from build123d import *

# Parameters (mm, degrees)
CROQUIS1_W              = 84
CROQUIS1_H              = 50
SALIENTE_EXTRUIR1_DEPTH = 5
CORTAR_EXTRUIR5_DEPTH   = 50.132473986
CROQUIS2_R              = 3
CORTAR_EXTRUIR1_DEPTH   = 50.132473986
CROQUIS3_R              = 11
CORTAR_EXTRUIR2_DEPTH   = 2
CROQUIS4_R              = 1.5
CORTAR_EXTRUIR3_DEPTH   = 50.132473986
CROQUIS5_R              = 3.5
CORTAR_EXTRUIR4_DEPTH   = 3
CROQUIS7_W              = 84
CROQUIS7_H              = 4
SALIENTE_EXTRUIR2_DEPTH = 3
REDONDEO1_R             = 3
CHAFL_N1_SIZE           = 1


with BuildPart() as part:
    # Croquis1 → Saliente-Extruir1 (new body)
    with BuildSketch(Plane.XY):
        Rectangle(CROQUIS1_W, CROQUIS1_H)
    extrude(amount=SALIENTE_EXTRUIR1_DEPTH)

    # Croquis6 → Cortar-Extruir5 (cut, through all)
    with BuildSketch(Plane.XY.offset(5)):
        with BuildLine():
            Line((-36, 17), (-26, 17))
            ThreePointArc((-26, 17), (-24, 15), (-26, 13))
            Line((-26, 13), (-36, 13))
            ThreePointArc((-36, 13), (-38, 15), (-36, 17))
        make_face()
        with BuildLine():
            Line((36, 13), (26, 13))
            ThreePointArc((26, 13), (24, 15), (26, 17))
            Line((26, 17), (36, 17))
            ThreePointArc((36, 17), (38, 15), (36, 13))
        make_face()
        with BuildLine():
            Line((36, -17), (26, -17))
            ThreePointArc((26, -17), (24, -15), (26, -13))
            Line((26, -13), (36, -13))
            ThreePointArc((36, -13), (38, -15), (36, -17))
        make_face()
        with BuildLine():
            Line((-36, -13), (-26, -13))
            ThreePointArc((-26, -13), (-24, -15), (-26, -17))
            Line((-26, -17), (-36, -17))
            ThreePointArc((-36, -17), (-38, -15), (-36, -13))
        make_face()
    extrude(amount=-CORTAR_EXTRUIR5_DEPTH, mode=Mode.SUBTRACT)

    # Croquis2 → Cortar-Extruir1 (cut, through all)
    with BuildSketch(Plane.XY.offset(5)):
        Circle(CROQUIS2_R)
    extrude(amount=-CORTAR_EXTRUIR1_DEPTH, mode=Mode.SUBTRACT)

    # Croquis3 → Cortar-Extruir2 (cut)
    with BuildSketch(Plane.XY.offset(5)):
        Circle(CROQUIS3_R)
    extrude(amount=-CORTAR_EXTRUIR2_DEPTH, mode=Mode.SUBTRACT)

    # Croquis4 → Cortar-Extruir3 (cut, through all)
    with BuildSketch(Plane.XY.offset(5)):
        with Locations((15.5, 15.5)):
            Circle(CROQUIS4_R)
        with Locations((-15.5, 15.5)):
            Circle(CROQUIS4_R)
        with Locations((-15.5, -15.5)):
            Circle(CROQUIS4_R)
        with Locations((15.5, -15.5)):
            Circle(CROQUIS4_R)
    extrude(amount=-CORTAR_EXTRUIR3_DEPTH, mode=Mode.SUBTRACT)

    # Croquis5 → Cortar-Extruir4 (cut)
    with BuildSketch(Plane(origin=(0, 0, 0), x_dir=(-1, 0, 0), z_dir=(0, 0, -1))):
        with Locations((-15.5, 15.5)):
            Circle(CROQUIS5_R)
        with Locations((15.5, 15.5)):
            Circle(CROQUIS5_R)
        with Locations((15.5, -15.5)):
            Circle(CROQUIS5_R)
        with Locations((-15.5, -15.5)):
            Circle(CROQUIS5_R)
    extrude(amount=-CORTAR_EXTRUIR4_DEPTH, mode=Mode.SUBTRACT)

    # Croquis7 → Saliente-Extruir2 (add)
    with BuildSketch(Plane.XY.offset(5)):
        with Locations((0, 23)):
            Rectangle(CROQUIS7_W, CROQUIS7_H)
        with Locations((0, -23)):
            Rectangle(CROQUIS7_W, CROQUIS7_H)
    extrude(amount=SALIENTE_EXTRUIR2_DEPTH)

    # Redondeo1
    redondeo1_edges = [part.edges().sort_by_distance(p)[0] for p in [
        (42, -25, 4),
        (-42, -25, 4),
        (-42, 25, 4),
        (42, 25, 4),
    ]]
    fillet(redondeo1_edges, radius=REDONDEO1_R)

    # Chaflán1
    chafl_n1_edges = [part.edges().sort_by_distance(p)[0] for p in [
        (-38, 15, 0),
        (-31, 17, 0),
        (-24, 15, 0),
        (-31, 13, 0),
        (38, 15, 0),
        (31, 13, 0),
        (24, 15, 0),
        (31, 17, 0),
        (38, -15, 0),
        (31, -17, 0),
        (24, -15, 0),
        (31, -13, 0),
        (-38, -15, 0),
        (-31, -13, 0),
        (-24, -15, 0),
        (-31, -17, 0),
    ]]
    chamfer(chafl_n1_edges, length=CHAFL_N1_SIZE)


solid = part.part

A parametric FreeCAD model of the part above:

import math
import FreeCAD as App
import Part
import Sketcher
from FreeCAD import Vector
Q = App.Units.Quantity


def edges_at(feature, points):
    """Names of the edges that pass closest to the given points."""
    edges = feature.Shape.Edges
    near = lambda p: min(range(len(edges)), key=lambda i: edges[i].distToShape(Part.Vertex(*p))[0])
    return sorted({f"Edge{near(p) + 1}" for p in points})


def add_polygon(sketch, points):
    """Adds a closed chain of lines whose ends are joined by coincident constraints."""
    first, n = sketch.GeometryCount, len(points)
    for a, b in zip(points, points[1:] + points[:1]):
        sketch.addGeometry(Part.LineSegment(App.Vector(*a, 0), App.Vector(*b, 0)), False)
    for i in range(n):
        sketch.addConstraint(Sketcher.Constraint("Coincident", first + i, 2, first + (i + 1) % n, 1))

doc = App.newDocument("Part")
params = doc.addObject("Spreadsheet::Sheet", "Params")
for row, (alias, value) in enumerate([
    ("sketch1_width", "84 mm"),
    ("sketch1_height", "50 mm"),
    ("pad1_length", "5 mm"),
    ("sketch2_radius", "2 mm"),
    ("sketch2_width", "10 mm"),
    ("sketch3_diameter", "6 mm"),
    ("sketch4_diameter", "22 mm"),
    ("pocket3_length", "2 mm"),
    ("sketch5_diameter", "3 mm"),
    ("sketch6_diameter", "7 mm"),
    ("pocket5_length", "3 mm"),
    ("sketch7_width", "84 mm"),
    ("sketch7_height", "4 mm"),
    ("pad2_length", "3 mm"),
    ("fillet_radius", "3 mm"),
    ("chamfer_size", "1 mm"),
], start=1):
    params.set(f"A{row}", alias)
    params.set(f"B{row}", "=" + value)
    params.setAlias(f"B{row}", alias)

body = doc.addObject("PartDesign::Body", "Body")

# Sketch on XY plane
sketch1 = body.newObject("Sketcher::SketchObject", "Sketch")
sketch1.AttachmentSupport = (doc.getObject("XY_Plane"), [""])
sketch1.MapMode = "FlatFace"
add_polygon(sketch1, [(-42, 25), (-42, -25), (42, -25), (42, 25)])  # lines 0-3
sketch1.addConstraint([
    Sketcher.Constraint("Vertical", 0),
    Sketcher.Constraint("Horizontal", 1),
    Sketcher.Constraint("Vertical", 2),
    Sketcher.Constraint("Horizontal", 3),
    Sketcher.Constraint("Symmetric", 0, 2, 2, 2, -1, 1),
    Sketcher.Constraint("DistanceX", 1, 1, 1, 2, Q("84 mm")),
    Sketcher.Constraint("DistanceY", 0, 2, 0, 1, Q("50 mm")),
])
sketch1.setExpression("Constraints[9]", "Params.sketch1_width")
sketch1.setExpression("Constraints[10]", "Params.sketch1_height")
pad1 = body.newObject("PartDesign::Pad", "Pad")
pad1.Profile = sketch1
pad1.setExpression("Length", "Params.pad1_length")

# Sketch on XY plane
sketch2 = body.newObject("Sketcher::SketchObject", "Sketch001")
sketch2.AttachmentSupport = (doc.getObject("XY_Plane"), [""])
sketch2.MapMode = "FlatFace"
sketch2.AttachmentOffset = App.Placement(Vector(0, 0, 5), App.Rotation())
sketch2.addGeometry([
    Part.LineSegment(Vector(-26, 17, 0), Vector(-36, 17, 0)),  # 0
    Part.ArcOfCircle(Part.Circle(Vector(-36, 15, 0), Vector(0, 0, 1), 2), math.radians(90), math.radians(270)),  # 1
    Part.LineSegment(Vector(-36, 13, 0), Vector(-26, 13, 0)),  # 2
    Part.ArcOfCircle(Part.Circle(Vector(-26, 15, 0), Vector(0, 0, 1), 2), math.radians(-90), math.radians(90)),  # 3
    Part.LineSegment(Vector(26, 13, 0), Vector(36, 13, 0)),  # 4
    Part.ArcOfCircle(Part.Circle(Vector(36, 15, 0), Vector(0, 0, 1), 2), math.radians(-90), math.radians(90)),  # 5
    Part.LineSegment(Vector(36, 17, 0), Vector(26, 17, 0)),  # 6
    Part.ArcOfCircle(Part.Circle(Vector(26, 15, 0), Vector(0, 0, 1), 2), math.radians(90), math.radians(270)),  # 7
    Part.LineSegment(Vector(26, -17, 0), Vector(36, -17, 0)),  # 8
    Part.ArcOfCircle(Part.Circle(Vector(36, -15, 0), Vector(0, 0, 1), 2), math.radians(-90), math.radians(90)),  # 9
    Part.LineSegment(Vector(36, -13, 0), Vector(26, -13, 0)),  # 10
    Part.ArcOfCircle(Part.Circle(Vector(26, -15, 0), Vector(0, 0, 1), 2), math.radians(90), math.radians(270)),  # 11
    Part.LineSegment(Vector(-26, -13, 0), Vector(-36, -13, 0)),  # 12
    Part.ArcOfCircle(Part.Circle(Vector(-36, -15, 0), Vector(0, 0, 1), 2), math.radians(90), math.radians(270)),  # 13
    Part.LineSegment(Vector(-36, -17, 0), Vector(-26, -17, 0)),  # 14
    Part.ArcOfCircle(Part.Circle(Vector(-26, -15, 0), Vector(0, 0, 1), 2), math.radians(-90), math.radians(90)),  # 15
], False)
sketch2.addConstraint([
    Sketcher.Constraint("Tangent", 0, 2, 1, 1),
    Sketcher.Constraint("Tangent", 1, 2, 2, 1),
    Sketcher.Constraint("Tangent", 2, 2, 3, 1),
    Sketcher.Constraint("Tangent", 3, 2, 0, 1),
    Sketcher.Constraint("Tangent", 4, 2, 5, 1),
    Sketcher.Constraint("Tangent", 5, 2, 6, 1),
    Sketcher.Constraint("Tangent", 6, 2, 7, 1),
    Sketcher.Constraint("Tangent", 7, 2, 4, 1),
    Sketcher.Constraint("Tangent", 8, 2, 9, 1),
    Sketcher.Constraint("Tangent", 9, 2, 10, 1),
    Sketcher.Constraint("Tangent", 10, 2, 11, 1),
    Sketcher.Constraint("Tangent", 11, 2, 8, 1),
    Sketcher.Constraint("Tangent", 12, 2, 13, 1),
    Sketcher.Constraint("Tangent", 13, 2, 14, 1),
    Sketcher.Constraint("Tangent", 14, 2, 15, 1),
    Sketcher.Constraint("Tangent", 15, 2, 12, 1),
    Sketcher.Constraint("Horizontal", 0),
    Sketcher.Constraint("Horizontal", 2),
    Sketcher.Constraint("Horizontal", 4),
    Sketcher.Constraint("Horizontal", 6),
    Sketcher.Constraint("Horizontal", 8),
    Sketcher.Constraint("Horizontal", 10),
    Sketcher.Constraint("Horizontal", 12),
    Sketcher.Constraint("Horizontal", 14),
    Sketcher.Constraint("Equal", 3, 5),
    Sketcher.Constraint("Equal", 7, 9),
    Sketcher.Constraint("Equal", 11, 13),
    Sketcher.Constraint("Symmetric", 1, 3, 9, 3, -1, 1),
    Sketcher.Constraint("Symmetric", 5, 3, 13, 3, -1, 1),
    Sketcher.Constraint("Symmetric", 1, 3, 5, 3, -2),
    Sketcher.Constraint("Vertical", 7, 3, 11, 3),
    Sketcher.Constraint("Vertical", 3, 3, 15, 3),
    Sketcher.Constraint("Equal", 2, 4),
    Sketcher.Constraint("Radius", 1, Q("2 mm")),
    Sketcher.Constraint("DistanceX", 0, 2, 0, 1, Q("10 mm")),
    Sketcher.Constraint("DistanceX", 1, 3, -1, 1, Q("36 mm")),
    Sketcher.Constraint("DistanceY", -1, 1, 1, 3, Q("15 mm")),
])
sketch2.setExpression("Constraints[33]", "Params.sketch2_radius")
sketch2.setExpression("Constraints[34]", "Params.sketch2_width")
pocket1 = body.newObject("PartDesign::Pocket", "Pocket")
pocket1.Profile = sketch2
pocket1.Type = "ThroughAll"

# Sketch on XY plane
sketch3 = body.newObject("Sketcher::SketchObject", "Sketch002")
sketch3.AttachmentSupport = (doc.getObject("XY_Plane"), [""])
sketch3.MapMode = "FlatFace"
sketch3.AttachmentOffset = App.Placement(Vector(0, 0, 5), App.Rotation())
sketch3.addGeometry(Part.Circle(Vector(0, 0, 0), Vector(0, 0, 1), 3), False)
sketch3.addConstraint([
    Sketcher.Constraint("Coincident", 0, 3, -1, 1),
    Sketcher.Constraint("Diameter", 0, Q("6 mm")),
])
sketch3.setExpression("Constraints[1]", "Params.sketch3_diameter")
pocket2 = body.newObject("PartDesign::Pocket", "Pocket001")
pocket2.Profile = sketch3
pocket2.Type = "ThroughAll"

# Sketch on XY plane
sketch4 = body.newObject("Sketcher::SketchObject", "Sketch003")
sketch4.AttachmentSupport = (doc.getObject("XY_Plane"), [""])
sketch4.MapMode = "FlatFace"
sketch4.AttachmentOffset = App.Placement(Vector(0, 0, 5), App.Rotation())
sketch4.addGeometry(Part.Circle(Vector(0, 0, 0), Vector(0, 0, 1), 11), False)
sketch4.addConstraint([
    Sketcher.Constraint("Coincident", 0, 3, -1, 1),
    Sketcher.Constraint("Diameter", 0, Q("22 mm")),
])
sketch4.setExpression("Constraints[1]", "Params.sketch4_diameter")
pocket3 = body.newObject("PartDesign::Pocket", "Pocket002")
pocket3.Profile = sketch4
pocket3.setExpression("Length", "Params.pocket3_length")

# Sketch on XY plane
sketch5 = body.newObject("Sketcher::SketchObject", "Sketch004")
sketch5.AttachmentSupport = (doc.getObject("XY_Plane"), [""])
sketch5.MapMode = "FlatFace"
sketch5.AttachmentOffset = App.Placement(Vector(0, 0, 5), App.Rotation())
sketch5.addGeometry([
    Part.Circle(Vector(15.5, 15.5, 0), Vector(0, 0, 1), 1.5),
    Part.Circle(Vector(-15.5, 15.5, 0), Vector(0, 0, 1), 1.5),
    Part.Circle(Vector(-15.5, -15.5, 0), Vector(0, 0, 1), 1.5),
    Part.Circle(Vector(15.5, -15.5, 0), Vector(0, 0, 1), 1.5),
], False)
sketch5.addConstraint([
    Sketcher.Constraint("Equal", 0, 1),
    Sketcher.Constraint("Equal", 1, 2),
    Sketcher.Constraint("Equal", 2, 3),
    Sketcher.Constraint("Symmetric", 0, 3, 2, 3, -1, 1),
    Sketcher.Constraint("Symmetric", 1, 3, 3, 3, -1, 1),
    Sketcher.Constraint("Symmetric", 0, 3, 1, 3, -2),
    Sketcher.Constraint("Diameter", 0, Q("3 mm")),
    Sketcher.Constraint("DistanceX", 1, 3, 0, 3, Q("31 mm")),
    Sketcher.Constraint("DistanceY", 2, 3, 1, 3, Q("31 mm")),
])
sketch5.setExpression("Constraints[6]", "Params.sketch5_diameter")
pocket4 = body.newObject("PartDesign::Pocket", "Pocket003")
pocket4.Profile = sketch5
pocket4.Type = "ThroughAll"

# Sketch on XY plane
sketch6 = body.newObject("Sketcher::SketchObject", "Sketch005")
sketch6.AttachmentSupport = (doc.getObject("XY_Plane"), [""])
sketch6.MapMode = "FlatFace"
sketch6.addGeometry([
    Part.Circle(Vector(15.5, 15.5, 0), Vector(0, 0, 1), 3.5),
    Part.Circle(Vector(-15.5, 15.5, 0), Vector(0, 0, 1), 3.5),
    Part.Circle(Vector(-15.5, -15.5, 0), Vector(0, 0, 1), 3.5),
    Part.Circle(Vector(15.5, -15.5, 0), Vector(0, 0, 1), 3.5),
], False)
sketch6.addConstraint([
    Sketcher.Constraint("Equal", 0, 1),
    Sketcher.Constraint("Equal", 1, 2),
    Sketcher.Constraint("Equal", 2, 3),
    Sketcher.Constraint("Symmetric", 0, 3, 2, 3, -1, 1),
    Sketcher.Constraint("Symmetric", 1, 3, 3, 3, -1, 1),
    Sketcher.Constraint("Symmetric", 0, 3, 1, 3, -2),
    Sketcher.Constraint("Diameter", 0, Q("7 mm")),
    Sketcher.Constraint("DistanceX", 1, 3, 0, 3, Q("31 mm")),
    Sketcher.Constraint("DistanceY", 2, 3, 1, 3, Q("31 mm")),
])
sketch6.setExpression("Constraints[6]", "Params.sketch6_diameter")
pocket5 = body.newObject("PartDesign::Pocket", "Pocket004")
pocket5.Profile = sketch6
pocket5.setExpression("Length", "Params.pocket5_length")
pocket5.Reversed = True

# Sketch on XY plane
sketch7 = body.newObject("Sketcher::SketchObject", "Sketch006")
sketch7.AttachmentSupport = (doc.getObject("XY_Plane"), [""])
sketch7.MapMode = "FlatFace"
sketch7.AttachmentOffset = App.Placement(Vector(0, 0, 5), App.Rotation())
add_polygon(sketch7, [(-42, 25), (-42, 21), (42, 21), (42, 25)])  # lines 0-3
add_polygon(sketch7, [(-42, -21), (-42, -25), (42, -25), (42, -21)])  # lines 4-7
sketch7.addConstraint([
    Sketcher.Constraint("Vertical", 0),
    Sketcher.Constraint("Horizontal", 1),
    Sketcher.Constraint("Vertical", 2),
    Sketcher.Constraint("Horizontal", 3),
    Sketcher.Constraint("Vertical", 4),
    Sketcher.Constraint("Horizontal", 5),
    Sketcher.Constraint("Vertical", 6),
    Sketcher.Constraint("Horizontal", 7),
    Sketcher.Constraint("Symmetric", 2, 2, 4, 2, -1, 1),
    Sketcher.Constraint("Symmetric", 0, 2, 6, 2, -1, 1),
    Sketcher.Constraint("Vertical", 3, 2, 4, 2),
    Sketcher.Constraint("DistanceX", 1, 1, 1, 2, Q("84 mm")),
    Sketcher.Constraint("DistanceY", 0, 2, 0, 1, Q("4 mm")),
    Sketcher.Constraint("DistanceY", -1, 1, 0, 2, Q("21 mm")),
])
sketch7.setExpression("Constraints[19]", "Params.sketch7_width")
sketch7.setExpression("Constraints[20]", "Params.sketch7_height")
pad2 = body.newObject("PartDesign::Pad", "Pad001")
pad2.Profile = sketch7
pad2.setExpression("Length", "Params.pad2_length")
doc.recompute()

fillet = body.newObject("PartDesign::Fillet", "Fillet")
fillet.Base = (pad2, edges_at(pad2, [
    (42, -25, 4),
    (-42, -25, 4),
    (-42, 25, 4),
    (42, 25, 4),
]))
fillet.setExpression("Radius", "Params.fillet_radius")
doc.recompute()

chamfer = body.newObject("PartDesign::Chamfer", "Chamfer")
chamfer.Base = (fillet, edges_at(fillet, [
    (-38, 15, 0),
    (-31, 17, 0),
    (-24, 15, 0),
    (-31, 13, 0),
    (38, 15, 0),
    (31, 13, 0),
    (24, 15, 0),
    (31, 17, 0),
    (38, -15, 0),
    (31, -17, 0),
    (24, -15, 0),
    (31, -13, 0),
    (-38, -15, 0),
    (-31, -13, 0),
    (-24, -15, 0),
    (-31, -17, 0),
]))
chamfer.setExpression("Size", "Params.chamfer_size")

doc.recompute()
